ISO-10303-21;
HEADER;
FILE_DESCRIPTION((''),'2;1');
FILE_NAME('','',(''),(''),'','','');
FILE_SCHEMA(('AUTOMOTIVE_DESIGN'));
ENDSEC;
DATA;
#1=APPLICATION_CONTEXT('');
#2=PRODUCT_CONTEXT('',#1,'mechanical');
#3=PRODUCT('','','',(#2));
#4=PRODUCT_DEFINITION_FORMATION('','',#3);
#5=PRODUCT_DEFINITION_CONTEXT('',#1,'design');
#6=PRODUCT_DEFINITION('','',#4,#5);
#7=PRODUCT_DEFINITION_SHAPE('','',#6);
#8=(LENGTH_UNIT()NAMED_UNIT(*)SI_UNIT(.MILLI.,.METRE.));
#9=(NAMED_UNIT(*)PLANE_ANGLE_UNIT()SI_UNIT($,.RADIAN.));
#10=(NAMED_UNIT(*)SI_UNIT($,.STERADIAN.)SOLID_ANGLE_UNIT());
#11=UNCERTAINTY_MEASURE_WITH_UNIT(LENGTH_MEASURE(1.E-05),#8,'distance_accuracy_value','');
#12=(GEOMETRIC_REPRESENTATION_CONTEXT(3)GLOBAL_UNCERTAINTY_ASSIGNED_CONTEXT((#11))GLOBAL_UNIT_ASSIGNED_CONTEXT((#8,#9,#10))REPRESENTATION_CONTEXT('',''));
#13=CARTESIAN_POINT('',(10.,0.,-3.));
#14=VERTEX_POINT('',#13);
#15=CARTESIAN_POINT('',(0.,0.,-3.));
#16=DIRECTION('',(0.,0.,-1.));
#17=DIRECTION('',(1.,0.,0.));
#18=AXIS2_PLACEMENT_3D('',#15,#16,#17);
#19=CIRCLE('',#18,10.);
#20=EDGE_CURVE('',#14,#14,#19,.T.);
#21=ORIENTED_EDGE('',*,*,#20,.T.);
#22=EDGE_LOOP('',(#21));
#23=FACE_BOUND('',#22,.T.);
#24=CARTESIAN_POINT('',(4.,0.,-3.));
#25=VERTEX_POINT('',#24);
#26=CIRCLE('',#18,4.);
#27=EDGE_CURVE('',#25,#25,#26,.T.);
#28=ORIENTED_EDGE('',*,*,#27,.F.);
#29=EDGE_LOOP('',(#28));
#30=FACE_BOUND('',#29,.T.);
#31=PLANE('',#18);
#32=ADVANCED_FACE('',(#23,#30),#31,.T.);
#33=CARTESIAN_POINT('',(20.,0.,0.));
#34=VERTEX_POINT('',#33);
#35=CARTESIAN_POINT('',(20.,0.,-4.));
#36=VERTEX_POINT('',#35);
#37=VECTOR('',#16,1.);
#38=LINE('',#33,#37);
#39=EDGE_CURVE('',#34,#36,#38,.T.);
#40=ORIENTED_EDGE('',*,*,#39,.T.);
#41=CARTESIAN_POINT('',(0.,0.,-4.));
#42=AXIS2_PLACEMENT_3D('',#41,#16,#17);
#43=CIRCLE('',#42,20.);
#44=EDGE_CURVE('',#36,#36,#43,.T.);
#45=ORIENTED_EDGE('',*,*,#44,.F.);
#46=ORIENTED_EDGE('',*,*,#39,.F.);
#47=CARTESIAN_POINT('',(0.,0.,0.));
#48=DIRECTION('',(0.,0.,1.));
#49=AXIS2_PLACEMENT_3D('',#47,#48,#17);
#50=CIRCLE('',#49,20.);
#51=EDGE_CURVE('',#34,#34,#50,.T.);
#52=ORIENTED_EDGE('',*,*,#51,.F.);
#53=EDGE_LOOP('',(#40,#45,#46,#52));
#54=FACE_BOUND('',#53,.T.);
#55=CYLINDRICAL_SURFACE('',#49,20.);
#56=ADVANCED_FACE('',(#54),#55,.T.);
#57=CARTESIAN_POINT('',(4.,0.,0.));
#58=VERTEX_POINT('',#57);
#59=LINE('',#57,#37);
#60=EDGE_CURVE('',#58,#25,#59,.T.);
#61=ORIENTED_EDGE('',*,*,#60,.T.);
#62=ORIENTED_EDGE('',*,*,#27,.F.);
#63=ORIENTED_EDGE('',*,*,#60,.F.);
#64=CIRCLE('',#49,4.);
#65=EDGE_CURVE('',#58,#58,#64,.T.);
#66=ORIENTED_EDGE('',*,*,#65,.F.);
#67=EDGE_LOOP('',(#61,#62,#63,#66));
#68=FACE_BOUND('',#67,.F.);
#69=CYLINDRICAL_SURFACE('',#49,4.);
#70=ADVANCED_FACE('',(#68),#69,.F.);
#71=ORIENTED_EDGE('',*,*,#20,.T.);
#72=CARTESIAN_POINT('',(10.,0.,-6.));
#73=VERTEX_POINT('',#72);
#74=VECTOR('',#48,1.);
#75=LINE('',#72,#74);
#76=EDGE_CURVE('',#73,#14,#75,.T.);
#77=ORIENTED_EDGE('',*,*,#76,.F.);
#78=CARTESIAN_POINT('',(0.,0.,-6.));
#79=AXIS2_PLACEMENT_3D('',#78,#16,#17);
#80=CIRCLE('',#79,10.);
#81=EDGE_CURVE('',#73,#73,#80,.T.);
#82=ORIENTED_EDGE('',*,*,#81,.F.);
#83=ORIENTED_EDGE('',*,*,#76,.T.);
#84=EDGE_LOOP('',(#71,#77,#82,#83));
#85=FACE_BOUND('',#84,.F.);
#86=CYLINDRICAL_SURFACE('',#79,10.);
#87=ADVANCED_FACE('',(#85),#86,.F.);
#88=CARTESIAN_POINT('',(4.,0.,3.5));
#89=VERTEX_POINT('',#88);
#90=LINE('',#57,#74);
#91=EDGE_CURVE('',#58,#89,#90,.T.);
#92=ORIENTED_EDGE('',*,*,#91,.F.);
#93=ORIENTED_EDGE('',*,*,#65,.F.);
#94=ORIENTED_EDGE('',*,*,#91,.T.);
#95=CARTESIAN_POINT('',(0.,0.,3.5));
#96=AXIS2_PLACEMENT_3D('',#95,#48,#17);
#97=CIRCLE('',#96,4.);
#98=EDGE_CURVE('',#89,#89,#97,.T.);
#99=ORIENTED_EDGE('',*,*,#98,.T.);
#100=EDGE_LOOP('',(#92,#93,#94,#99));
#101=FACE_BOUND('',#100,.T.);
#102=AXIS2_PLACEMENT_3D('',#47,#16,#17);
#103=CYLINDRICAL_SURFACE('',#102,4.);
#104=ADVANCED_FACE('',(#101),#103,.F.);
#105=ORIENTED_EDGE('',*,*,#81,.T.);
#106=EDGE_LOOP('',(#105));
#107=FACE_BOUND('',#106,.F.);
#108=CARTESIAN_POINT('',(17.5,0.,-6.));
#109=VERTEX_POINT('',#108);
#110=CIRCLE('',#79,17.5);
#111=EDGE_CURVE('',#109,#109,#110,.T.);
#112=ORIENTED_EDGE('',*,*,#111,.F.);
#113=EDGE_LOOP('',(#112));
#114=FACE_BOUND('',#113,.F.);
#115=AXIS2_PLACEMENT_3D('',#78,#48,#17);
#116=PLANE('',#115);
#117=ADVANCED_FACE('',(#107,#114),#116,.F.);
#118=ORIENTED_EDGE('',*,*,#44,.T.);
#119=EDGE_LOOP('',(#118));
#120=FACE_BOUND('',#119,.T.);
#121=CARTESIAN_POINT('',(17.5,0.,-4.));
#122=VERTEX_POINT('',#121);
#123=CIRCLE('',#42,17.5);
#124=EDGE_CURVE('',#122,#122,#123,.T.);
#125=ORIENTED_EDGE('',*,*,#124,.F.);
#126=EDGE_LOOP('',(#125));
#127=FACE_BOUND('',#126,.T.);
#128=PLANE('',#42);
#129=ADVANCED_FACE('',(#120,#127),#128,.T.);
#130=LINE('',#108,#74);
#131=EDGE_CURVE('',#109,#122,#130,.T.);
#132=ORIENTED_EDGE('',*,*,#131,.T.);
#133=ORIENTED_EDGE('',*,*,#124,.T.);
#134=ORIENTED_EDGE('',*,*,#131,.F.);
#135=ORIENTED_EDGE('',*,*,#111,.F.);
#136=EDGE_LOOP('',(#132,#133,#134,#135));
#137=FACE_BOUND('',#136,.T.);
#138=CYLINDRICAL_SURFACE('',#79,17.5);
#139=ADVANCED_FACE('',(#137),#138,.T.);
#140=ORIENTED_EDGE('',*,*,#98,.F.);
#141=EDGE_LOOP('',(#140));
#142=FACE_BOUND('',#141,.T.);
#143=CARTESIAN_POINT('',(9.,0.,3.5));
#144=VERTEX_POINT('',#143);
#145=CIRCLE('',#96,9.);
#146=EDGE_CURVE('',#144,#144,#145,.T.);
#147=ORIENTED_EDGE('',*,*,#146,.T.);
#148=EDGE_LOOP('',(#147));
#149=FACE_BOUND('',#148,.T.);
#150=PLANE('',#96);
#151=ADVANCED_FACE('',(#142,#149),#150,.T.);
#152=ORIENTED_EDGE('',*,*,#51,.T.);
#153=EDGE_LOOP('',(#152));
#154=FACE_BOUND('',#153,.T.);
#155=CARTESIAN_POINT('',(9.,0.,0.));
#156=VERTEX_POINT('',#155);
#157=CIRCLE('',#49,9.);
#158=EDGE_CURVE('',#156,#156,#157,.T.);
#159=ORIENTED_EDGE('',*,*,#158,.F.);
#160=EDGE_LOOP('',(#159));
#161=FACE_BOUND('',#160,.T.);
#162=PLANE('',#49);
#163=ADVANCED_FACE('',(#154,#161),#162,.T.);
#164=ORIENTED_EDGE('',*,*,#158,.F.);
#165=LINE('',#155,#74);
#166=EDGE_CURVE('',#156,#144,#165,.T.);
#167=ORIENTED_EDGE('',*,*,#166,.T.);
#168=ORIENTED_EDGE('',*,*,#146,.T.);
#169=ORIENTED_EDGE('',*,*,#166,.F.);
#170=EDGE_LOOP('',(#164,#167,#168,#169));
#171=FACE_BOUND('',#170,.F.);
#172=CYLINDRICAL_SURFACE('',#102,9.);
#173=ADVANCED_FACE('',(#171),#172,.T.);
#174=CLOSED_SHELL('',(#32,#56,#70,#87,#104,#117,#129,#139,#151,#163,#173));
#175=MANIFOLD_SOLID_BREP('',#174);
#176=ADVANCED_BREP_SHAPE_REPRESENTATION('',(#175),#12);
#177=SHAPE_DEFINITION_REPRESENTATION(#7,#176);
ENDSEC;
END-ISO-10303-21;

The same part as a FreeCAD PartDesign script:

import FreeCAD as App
import Part
import Sketcher
from FreeCAD import Vector
Q = App.Units.Quantity

doc = App.newDocument("Part")
body = doc.addObject("PartDesign::Body", "Body")

# Sketch on XY plane
sketch1 = body.newObject("Sketcher::SketchObject", "Sketch")
sketch1.AttachmentSupport = (doc.getObject("XY_Plane"), [""])
sketch1.MapMode = "FlatFace"
sketch1.addGeometry([
    Part.Circle(Vector(0, 0, 0), Vector(0, 0, 1), 9),
    Part.Circle(Vector(0, 0, 0), Vector(0, 0, 1), 4),
], False)
sketch1.addConstraint([
    Sketcher.Constraint("Coincident", 0, 3, -1, 1),
    Sketcher.Constraint("Coincident", 1, 3, -1, 1),
    Sketcher.Constraint("Diameter", 0, Q("18 mm")),
    Sketcher.Constraint("Diameter", 1, Q("8 mm")),
])
pad1 = body.newObject("PartDesign::Pad", "Pad")
pad1.Profile = sketch1
pad1.Length = 3.5

# Sketch on XY plane
sketch2 = body.newObject("Sketcher::SketchObject", "Sketch001")
sketch2.AttachmentSupport = (doc.getObject("XY_Plane"), [""])
sketch2.MapMode = "FlatFace"
sketch2.addGeometry([
    Part.Circle(Vector(0, 0, 0), Vector(0, 0, 1), 20),
    Part.Circle(Vector(0, 0, 0), Vector(0, 0, 1), 4),
], False)
sketch2.addConstraint([
    Sketcher.Constraint("Coincident", 0, 3, -1, 1),
    Sketcher.Constraint("Coincident", 1, 3, -1, 1),
    Sketcher.Constraint("Diameter", 0, Q("40 mm")),
    Sketcher.Constraint("Diameter", 1, Q("8 mm")),
])
pad2 = body.newObject("PartDesign::Pad", "Pad001")
pad2.Profile = sketch2
pad2.Length = 6
pad2.Reversed = True

# Sketch on XY plane
sketch3 = body.newObject("Sketcher::SketchObject", "Sketch002")
sketch3.AttachmentSupport = (doc.getObject("XY_Plane"), [""])
sketch3.MapMode = "FlatFace"
sketch3.AttachmentOffset = App.Placement(Vector(0, 0, -6), App.Rotation())
sketch3.addGeometry([
    Part.Circle(Vector(0, 0, 0), Vector(0, 0, 1), 10),
    Part.Circle(Vector(0, 0, 0), Vector(0, 0, 1), 4),
], False)
sketch3.addConstraint([
    Sketcher.Constraint("Coincident", 0, 3, -1, 1),
    Sketcher.Constraint("Coincident", 1, 3, -1, 1),
    Sketcher.Constraint("Diameter", 0, Q("20 mm")),
    Sketcher.Constraint("Diameter", 1, Q("8 mm")),
])
pocket1 = body.newObject("PartDesign::Pocket", "Pocket")
pocket1.Profile = sketch3
pocket1.Length = 3
pocket1.Reversed = True

# Sketch on XY plane
sketch4 = body.newObject("Sketcher::SketchObject", "Sketch003")
sketch4.AttachmentSupport = (doc.getObject("XY_Plane"), [""])
sketch4.MapMode = "FlatFace"
sketch4.AttachmentOffset = App.Placement(Vector(0, 0, -6), App.Rotation())
sketch4.addGeometry([
    Part.Circle(Vector(0, 0, 0), Vector(0, 0, 1), 20),
    Part.Circle(Vector(0, 0, 0), Vector(0, 0, 1), 18),
], False)
sketch4.addConstraint([
    Sketcher.Constraint("Coincident", 0, 3, -1, 1),
    Sketcher.Constraint("Coincident", 1, 3, -1, 1),
    Sketcher.Constraint("Diameter", 0, Q("40 mm")),
    Sketcher.Constraint("Diameter", 1, Q("35 mm")),
])
pocket2 = body.newObject("PartDesign::Pocket", "Pocket001")
pocket2.Profile = sketch4
pocket2.Length = 2
pocket2.Reversed = True

doc.recompute()
